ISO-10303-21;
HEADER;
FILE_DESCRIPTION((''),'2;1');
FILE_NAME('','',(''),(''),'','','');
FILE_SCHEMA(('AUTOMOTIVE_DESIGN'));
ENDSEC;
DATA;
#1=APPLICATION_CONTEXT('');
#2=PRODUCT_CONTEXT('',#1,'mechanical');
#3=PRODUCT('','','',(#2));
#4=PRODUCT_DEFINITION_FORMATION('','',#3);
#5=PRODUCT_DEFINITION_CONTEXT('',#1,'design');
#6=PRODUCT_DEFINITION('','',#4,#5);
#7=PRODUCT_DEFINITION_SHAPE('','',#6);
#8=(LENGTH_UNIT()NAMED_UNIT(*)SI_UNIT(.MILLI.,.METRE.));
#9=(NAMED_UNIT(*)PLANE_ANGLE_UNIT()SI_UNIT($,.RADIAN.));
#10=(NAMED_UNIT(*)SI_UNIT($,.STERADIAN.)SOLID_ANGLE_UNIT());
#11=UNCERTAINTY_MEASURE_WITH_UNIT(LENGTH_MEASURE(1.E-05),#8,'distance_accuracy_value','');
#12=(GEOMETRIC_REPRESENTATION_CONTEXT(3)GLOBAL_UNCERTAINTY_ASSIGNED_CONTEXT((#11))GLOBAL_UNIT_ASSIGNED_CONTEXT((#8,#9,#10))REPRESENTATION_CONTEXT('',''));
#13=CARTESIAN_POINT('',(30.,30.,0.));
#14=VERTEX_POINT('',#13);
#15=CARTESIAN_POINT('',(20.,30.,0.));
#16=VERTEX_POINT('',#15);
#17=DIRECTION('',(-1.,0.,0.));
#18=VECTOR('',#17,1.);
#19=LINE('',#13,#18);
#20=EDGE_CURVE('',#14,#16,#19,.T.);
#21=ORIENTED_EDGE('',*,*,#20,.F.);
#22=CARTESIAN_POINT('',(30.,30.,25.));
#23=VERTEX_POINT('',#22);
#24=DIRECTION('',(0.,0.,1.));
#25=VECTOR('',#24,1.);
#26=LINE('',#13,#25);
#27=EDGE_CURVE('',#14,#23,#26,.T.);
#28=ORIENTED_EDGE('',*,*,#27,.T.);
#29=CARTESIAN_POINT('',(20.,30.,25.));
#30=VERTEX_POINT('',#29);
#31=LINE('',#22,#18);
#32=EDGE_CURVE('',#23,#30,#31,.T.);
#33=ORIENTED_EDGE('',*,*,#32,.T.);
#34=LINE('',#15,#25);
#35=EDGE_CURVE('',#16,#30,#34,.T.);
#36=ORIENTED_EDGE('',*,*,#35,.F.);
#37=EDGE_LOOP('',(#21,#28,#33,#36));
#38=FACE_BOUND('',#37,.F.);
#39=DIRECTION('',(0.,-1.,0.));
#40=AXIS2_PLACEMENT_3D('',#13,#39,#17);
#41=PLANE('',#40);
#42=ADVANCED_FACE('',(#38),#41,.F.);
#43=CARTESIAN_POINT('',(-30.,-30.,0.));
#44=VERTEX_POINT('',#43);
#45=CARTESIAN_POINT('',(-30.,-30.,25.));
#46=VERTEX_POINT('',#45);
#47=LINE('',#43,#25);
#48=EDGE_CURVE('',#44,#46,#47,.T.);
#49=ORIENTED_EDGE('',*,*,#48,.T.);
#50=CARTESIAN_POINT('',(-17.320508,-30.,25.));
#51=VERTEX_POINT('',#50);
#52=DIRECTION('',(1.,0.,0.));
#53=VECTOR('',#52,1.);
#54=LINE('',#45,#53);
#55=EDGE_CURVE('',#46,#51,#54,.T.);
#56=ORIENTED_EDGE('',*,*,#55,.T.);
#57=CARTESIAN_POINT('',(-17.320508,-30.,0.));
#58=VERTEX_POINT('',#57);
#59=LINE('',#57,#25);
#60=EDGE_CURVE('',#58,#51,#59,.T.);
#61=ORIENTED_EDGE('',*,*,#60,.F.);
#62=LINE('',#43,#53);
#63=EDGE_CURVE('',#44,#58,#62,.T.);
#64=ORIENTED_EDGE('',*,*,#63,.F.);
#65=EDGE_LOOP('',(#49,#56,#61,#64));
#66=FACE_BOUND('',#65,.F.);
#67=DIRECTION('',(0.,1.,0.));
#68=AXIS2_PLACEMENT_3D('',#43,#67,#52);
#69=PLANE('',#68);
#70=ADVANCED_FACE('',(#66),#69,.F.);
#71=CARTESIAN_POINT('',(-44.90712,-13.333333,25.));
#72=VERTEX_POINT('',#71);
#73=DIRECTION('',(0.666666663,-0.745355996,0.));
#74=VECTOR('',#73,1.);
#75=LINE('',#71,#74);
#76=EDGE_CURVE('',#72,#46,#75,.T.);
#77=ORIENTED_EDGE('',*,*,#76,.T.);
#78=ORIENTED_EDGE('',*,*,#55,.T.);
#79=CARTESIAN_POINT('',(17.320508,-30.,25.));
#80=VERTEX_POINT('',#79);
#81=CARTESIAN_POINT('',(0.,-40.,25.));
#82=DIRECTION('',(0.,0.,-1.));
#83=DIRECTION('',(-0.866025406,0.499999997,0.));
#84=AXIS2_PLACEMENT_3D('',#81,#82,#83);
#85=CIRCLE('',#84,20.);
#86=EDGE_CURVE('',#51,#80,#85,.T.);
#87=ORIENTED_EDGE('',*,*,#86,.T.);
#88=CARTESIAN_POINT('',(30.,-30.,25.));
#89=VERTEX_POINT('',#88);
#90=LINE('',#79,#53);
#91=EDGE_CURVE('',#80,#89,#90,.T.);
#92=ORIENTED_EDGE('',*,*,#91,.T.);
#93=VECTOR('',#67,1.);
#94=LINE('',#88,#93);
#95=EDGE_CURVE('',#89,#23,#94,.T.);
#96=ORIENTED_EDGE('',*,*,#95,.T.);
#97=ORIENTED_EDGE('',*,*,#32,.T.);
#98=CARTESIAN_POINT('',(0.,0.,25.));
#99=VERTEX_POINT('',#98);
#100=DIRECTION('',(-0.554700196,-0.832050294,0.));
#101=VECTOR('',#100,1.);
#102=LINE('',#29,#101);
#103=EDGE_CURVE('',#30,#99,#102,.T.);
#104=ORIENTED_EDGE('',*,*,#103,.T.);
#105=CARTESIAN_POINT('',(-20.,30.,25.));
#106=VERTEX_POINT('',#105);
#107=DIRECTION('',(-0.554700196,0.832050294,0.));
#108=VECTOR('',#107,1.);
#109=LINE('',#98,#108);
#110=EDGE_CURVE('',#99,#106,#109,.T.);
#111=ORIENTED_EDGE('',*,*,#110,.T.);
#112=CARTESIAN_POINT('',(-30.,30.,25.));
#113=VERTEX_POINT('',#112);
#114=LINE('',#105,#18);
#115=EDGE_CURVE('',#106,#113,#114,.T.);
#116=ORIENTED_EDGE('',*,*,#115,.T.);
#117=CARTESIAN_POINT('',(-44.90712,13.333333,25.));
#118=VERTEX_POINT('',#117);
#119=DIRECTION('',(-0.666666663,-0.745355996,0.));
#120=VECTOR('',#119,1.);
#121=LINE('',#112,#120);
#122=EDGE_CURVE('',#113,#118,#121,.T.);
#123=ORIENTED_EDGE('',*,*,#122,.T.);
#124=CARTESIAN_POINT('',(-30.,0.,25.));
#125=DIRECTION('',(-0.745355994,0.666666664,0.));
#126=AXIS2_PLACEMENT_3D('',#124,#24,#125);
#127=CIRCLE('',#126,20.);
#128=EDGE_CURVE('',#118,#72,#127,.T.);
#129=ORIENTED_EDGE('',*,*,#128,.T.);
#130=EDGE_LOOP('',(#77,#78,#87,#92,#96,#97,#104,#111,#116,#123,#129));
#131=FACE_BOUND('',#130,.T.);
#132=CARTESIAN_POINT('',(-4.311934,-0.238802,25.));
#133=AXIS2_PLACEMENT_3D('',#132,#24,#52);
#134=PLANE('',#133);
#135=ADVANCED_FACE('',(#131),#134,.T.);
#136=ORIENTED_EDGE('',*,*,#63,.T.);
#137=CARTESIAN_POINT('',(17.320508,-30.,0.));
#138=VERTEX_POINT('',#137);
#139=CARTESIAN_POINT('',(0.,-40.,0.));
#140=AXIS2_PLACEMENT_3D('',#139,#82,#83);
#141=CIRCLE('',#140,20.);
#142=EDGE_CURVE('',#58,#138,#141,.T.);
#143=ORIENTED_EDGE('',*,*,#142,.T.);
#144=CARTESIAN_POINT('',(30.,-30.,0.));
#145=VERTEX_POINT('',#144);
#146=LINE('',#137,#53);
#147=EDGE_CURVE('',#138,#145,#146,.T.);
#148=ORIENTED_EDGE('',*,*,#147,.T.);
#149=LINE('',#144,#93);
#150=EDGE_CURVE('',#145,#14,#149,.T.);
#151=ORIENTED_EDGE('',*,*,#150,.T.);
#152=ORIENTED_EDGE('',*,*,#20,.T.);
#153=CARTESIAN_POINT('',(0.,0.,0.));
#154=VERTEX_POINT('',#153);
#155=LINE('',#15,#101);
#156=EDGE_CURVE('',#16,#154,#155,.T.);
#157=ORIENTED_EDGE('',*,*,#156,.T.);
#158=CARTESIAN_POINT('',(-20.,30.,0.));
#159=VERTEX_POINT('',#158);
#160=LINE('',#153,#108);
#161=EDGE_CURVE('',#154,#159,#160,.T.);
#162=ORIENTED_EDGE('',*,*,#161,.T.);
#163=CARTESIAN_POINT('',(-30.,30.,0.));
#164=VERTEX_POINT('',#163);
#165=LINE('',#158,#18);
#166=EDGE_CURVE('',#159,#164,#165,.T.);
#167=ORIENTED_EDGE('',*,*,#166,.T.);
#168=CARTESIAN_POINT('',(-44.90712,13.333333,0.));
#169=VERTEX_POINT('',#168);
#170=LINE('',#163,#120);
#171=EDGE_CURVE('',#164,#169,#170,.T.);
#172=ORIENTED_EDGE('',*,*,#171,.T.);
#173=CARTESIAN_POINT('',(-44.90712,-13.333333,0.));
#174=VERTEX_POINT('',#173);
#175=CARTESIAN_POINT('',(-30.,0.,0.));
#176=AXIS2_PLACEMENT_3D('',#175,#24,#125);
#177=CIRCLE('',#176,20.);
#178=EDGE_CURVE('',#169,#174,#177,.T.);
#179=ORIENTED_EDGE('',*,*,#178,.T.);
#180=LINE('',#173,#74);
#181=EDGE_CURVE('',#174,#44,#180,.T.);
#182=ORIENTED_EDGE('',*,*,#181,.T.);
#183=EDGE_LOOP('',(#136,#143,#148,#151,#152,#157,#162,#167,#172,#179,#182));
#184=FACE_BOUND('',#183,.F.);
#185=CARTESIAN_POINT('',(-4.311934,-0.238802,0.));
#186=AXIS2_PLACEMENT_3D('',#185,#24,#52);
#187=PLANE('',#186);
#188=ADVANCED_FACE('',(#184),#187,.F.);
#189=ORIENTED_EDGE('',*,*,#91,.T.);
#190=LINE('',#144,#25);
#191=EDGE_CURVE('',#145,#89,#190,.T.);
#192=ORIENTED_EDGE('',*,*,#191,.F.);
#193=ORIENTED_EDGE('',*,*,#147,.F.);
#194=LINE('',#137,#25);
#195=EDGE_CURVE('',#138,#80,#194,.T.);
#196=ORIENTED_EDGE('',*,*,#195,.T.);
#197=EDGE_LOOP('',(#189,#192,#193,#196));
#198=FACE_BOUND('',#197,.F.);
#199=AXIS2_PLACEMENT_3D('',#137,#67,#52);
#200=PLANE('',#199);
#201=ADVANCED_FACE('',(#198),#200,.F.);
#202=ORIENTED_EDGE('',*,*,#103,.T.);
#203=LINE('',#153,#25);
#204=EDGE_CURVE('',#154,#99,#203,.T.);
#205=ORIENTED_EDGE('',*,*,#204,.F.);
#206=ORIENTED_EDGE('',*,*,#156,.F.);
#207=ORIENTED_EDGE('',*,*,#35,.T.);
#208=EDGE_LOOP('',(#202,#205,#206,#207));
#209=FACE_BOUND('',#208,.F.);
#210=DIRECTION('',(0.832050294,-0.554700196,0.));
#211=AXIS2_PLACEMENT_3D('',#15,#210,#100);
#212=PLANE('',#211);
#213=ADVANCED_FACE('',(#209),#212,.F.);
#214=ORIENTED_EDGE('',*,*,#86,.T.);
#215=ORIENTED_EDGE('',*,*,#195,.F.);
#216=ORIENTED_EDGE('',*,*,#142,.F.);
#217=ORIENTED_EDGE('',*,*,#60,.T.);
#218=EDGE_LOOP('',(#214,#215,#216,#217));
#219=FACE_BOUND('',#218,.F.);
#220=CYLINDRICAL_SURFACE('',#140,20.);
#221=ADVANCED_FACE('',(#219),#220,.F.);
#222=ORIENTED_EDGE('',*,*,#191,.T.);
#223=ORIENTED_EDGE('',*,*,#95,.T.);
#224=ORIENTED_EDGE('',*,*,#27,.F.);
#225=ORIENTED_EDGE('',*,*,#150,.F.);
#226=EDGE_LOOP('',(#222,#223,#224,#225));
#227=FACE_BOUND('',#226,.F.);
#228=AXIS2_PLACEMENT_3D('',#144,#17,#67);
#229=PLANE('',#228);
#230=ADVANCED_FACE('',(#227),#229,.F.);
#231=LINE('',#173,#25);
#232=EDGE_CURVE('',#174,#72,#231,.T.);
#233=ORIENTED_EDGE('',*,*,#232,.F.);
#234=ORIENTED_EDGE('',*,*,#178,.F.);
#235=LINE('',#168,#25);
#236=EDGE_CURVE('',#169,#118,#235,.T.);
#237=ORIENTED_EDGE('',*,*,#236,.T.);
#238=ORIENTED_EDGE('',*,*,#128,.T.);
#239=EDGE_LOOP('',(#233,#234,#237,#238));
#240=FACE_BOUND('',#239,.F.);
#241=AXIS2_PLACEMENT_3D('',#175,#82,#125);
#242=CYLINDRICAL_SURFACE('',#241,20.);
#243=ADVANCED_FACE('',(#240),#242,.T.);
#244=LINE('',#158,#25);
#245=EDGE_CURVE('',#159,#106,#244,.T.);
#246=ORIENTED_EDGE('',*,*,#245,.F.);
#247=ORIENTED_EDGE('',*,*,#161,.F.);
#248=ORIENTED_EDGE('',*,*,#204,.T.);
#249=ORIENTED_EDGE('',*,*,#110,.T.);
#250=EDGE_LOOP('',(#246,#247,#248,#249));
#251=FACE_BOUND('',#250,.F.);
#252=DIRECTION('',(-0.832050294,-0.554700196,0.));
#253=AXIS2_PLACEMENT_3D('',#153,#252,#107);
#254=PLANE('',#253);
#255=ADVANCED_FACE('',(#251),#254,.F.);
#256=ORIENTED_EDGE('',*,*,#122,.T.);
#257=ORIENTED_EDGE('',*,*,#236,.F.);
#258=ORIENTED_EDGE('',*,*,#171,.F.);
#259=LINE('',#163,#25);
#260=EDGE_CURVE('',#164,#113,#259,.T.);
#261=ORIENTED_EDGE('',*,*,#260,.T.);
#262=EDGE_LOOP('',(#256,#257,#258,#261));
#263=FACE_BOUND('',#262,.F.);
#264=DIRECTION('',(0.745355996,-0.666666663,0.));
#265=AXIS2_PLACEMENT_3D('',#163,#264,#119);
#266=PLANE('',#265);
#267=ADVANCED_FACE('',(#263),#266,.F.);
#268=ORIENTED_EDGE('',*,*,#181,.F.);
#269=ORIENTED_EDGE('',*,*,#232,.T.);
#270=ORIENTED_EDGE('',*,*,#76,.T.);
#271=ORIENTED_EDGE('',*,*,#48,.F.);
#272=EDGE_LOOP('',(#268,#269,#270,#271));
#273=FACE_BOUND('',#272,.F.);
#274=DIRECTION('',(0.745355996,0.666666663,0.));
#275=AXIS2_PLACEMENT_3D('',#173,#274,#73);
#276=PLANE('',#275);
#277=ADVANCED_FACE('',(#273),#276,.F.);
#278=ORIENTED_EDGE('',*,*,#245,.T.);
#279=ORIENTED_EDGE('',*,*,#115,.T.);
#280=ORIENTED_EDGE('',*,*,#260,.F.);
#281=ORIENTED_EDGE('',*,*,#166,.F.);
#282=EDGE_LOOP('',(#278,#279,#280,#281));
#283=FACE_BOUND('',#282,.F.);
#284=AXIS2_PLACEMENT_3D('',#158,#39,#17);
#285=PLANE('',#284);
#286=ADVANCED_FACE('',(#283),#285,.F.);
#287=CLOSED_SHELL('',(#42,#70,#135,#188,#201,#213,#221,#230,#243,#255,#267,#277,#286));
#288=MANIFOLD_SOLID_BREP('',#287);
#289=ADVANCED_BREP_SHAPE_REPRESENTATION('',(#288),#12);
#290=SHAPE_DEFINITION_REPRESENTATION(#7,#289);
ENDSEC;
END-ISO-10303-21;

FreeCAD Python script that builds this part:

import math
import FreeCAD as App
import Part
import Sketcher

V = App.Vector

doc = App.newDocument("Part")
body = doc.addObject("PartDesign::Body", "Body")

sketch1 = body.newObject("Sketcher::SketchObject", "Sketch")
sketch1.AttachmentSupport = (doc.getObject("XY_Plane"), [""])
sketch1.MapMode = "FlatFace"
sketch1.addGeometry([
    Part.LineSegment(V(0, 0, 0), V(-20, 30, 0)),
    Part.LineSegment(V(-20, 30, 0), V(-30, 30, 0)),
    Part.LineSegment(V(-30, 30, 0), V(-45, 13, 0)),
    Part.ArcOfCircle(Part.Circle(V(-30, 0, 0), V(0, 0, 1), 20), math.radians(138), math.radians(222)),
    Part.LineSegment(V(-45, -13, 0), V(-30, -30, 0)),
    Part.LineSegment(V(-30, -30, 0), V(-17, -30, 0)),
    Part.ArcOfCircle(Part.Circle(V(0, -40, 0), V(0, 0, 1), 20), math.radians(30), math.radians(150)),
    Part.LineSegment(V(17, -30, 0), V(30, -30, 0)),
    Part.LineSegment(V(30, -30, 0), V(30, 30, 0)),
    Part.LineSegment(V(30, 30, 0), V(20, 30, 0)),
    Part.LineSegment(V(20, 30, 0), V(0, 0, 0)),
], False)
sketch1.addConstraint([
    Sketcher.Constraint("Coincident", 0, 2, 1, 1),
    Sketcher.Constraint("Coincident", 1, 2, 2, 1),
    Sketcher.Constraint("Tangent", 2, 2, 3, 1),
    Sketcher.Constraint("Tangent", 3, 2, 4, 1),
    Sketcher.Constraint("Coincident", 4, 2, 5, 1),
    Sketcher.Constraint("Coincident", 5, 2, 6, 2),
    Sketcher.Constraint("Coincident", 6, 1, 7, 1),
    Sketcher.Constraint("Coincident", 7, 2, 8, 1),
    Sketcher.Constraint("Coincident", 8, 2, 9, 1),
    Sketcher.Constraint("Coincident", 9, 2, 10, 1),
    Sketcher.Constraint("Coincident", 10, 2, 0, 1),
    Sketcher.Constraint("Horizontal", 1),
    Sketcher.Constraint("Horizontal", 5),
    Sketcher.Constraint("Horizontal", 7),
    Sketcher.Constraint("Vertical", 8),
    Sketcher.Constraint("Horizontal", 9),
    Sketcher.Constraint("Coincident", 10, 2, -1, 1),
    Sketcher.Constraint("Equal", 3, 6),
    Sketcher.Constraint("Symmetric", 1, 2, 7, 2, -1, 1),
    Sketcher.Constraint("Symmetric", 4, 2, 8, 2, -1, 1),
    Sketcher.Constraint("Symmetric", 5, 2, 6, 1, -2),
    Sketcher.Constraint("PointOnObject", 3, 3, -1),
    Sketcher.Constraint("Vertical", 3, 3, 1, 2),
    Sketcher.Constraint("Equal", 1, 9),
    Sketcher.Constraint("Radius", 3, 20.0),
    Sketcher.Constraint("DistanceX", 1, 2, 1, 1, 10.0),
    Sketcher.Constraint("DistanceY", 8, 1, 8, 2, 60.0),
    Sketcher.Constraint("DistanceX", 3, 3, -1, 1, 30.0),
    Sketcher.Constraint("DistanceY", 6, 3, -1, 1, 40.0),
])
pad1 = body.newObject("PartDesign::Pad", "Pad")
pad1.Profile = sketch1
pad1.Length = 25

doc.recompute()
